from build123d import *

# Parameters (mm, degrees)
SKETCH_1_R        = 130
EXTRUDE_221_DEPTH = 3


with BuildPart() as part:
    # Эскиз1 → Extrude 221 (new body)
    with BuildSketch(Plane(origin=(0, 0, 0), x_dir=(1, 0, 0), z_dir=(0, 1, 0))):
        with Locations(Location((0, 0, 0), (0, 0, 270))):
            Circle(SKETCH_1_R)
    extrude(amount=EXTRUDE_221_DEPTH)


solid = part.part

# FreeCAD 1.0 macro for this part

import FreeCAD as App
import Part
import Sketcher
from FreeCAD import Vector
Q = App.Units.Quantity

doc = App.newDocument("Part")
body = doc.addObject("PartDesign::Body", "Body")

sketch1 = body.newObject("Sketcher::SketchObject", "Sketch")
sketch1.AttachmentSupport = (doc.getObject("XZ_Plane"), [""])
sketch1.MapMode = "FlatFace"
sketch1.addGeometry(Part.Circle(Vector(0, 0, 0), Vector(0, 0, 1), 130), False)
sketch1.addConstraint([
    Sketcher.Constraint("Coincident", 0, 3, -1, 1),
    Sketcher.Constraint("Diameter", 0, Q("260 mm")),
])
pad1 = body.newObject("PartDesign::Pad", "Pad")
pad1.Profile = sketch1
pad1.Length = 3
pad1.Reversed = True

doc.recompute()
